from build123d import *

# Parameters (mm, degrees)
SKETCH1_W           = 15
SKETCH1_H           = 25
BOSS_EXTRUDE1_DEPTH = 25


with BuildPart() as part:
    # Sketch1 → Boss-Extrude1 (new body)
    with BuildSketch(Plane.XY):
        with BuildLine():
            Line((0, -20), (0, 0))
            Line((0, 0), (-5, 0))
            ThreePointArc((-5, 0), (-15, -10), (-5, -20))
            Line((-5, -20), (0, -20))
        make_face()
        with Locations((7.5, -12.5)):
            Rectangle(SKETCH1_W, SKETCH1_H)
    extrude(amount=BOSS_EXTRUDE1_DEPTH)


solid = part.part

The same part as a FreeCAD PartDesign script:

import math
import FreeCAD as App
import Part
import Sketcher
from FreeCAD import Vector

doc = App.newDocument("Part")
body = doc.addObject("PartDesign::Body", "Body")

sketch1 = body.newObject("Sketcher::SketchObject", "Sketch")
sketch1.AttachmentSupport = (doc.getObject("XY_Plane"), [""])
sketch1.MapMode = "FlatFace"
sketch1.addGeometry(Part.ArcOfCircle(Part.Circle(Vector(-5, -10, 0), Vector(0, 0, 1), 10), math.radians(90), math.radians(270)), False)
sketch1.addGeometry(Part.LineSegment(Vector(-5, -20, 0), Vector(0, -20, 0)), False)
sketch1.addGeometry(Part.LineSegment(Vector(0, -20, 0), Vector(0, -25, 0)), False)
sketch1.addGeometry(Part.LineSegment(Vector(0, -25, 0), Vector(15, -25, 0)), False)
sketch1.addGeometry(Part.LineSegment(Vector(15, -25, 0), Vector(15, 0, 0)), False)
sketch1.addGeometry(Part.LineSegment(Vector(15, 0, 0), Vector(-5, 0, 0)), False)
sketch1.addConstraint(Sketcher.Constraint("Tangent", 0, 2, 1, 1))
sketch1.addConstraint(Sketcher.Constraint("Coincident", 1, 2, 2, 1))
sketch1.addConstraint(Sketcher.Constraint("Coincident", 2, 2, 3, 1))
sketch1.addConstraint(Sketcher.Constraint("Coincident", 3, 2, 4, 1))
sketch1.addConstraint(Sketcher.Constraint("Coincident", 4, 2, 5, 1))
sketch1.addConstraint(Sketcher.Constraint("Tangent", 5, 2, 0, 1))
sketch1.addConstraint(Sketcher.Constraint("Horizontal", 1))
sketch1.addConstraint(Sketcher.Constraint("Vertical", 2))
sketch1.addConstraint(Sketcher.Constraint("Horizontal", 3))
sketch1.addConstraint(Sketcher.Constraint("Vertical", 4))
sketch1.addConstraint(Sketcher.Constraint("Horizontal", 5))
sketch1.addConstraint(Sketcher.Constraint("PointOnObject", 1, 2, -2))
sketch1.addConstraint(Sketcher.Constraint("PointOnObject", 4, 2, -1))
sketch1.addConstraint(Sketcher.Constraint("Equal", 1, 2))
sketch1.addConstraint(Sketcher.Constraint("Radius", 0, 10.0))
sketch1.addConstraint(Sketcher.Constraint("DistanceX", 1, 1, 1, 2, 5.0))
sketch1.addConstraint(Sketcher.Constraint("DistanceX", 3, 1, 3, 2, 15.0))
pad1 = body.newObject("PartDesign::Pad", "Pad")
pad1.Profile = sketch1
pad1.Length = 25

doc.recompute()
